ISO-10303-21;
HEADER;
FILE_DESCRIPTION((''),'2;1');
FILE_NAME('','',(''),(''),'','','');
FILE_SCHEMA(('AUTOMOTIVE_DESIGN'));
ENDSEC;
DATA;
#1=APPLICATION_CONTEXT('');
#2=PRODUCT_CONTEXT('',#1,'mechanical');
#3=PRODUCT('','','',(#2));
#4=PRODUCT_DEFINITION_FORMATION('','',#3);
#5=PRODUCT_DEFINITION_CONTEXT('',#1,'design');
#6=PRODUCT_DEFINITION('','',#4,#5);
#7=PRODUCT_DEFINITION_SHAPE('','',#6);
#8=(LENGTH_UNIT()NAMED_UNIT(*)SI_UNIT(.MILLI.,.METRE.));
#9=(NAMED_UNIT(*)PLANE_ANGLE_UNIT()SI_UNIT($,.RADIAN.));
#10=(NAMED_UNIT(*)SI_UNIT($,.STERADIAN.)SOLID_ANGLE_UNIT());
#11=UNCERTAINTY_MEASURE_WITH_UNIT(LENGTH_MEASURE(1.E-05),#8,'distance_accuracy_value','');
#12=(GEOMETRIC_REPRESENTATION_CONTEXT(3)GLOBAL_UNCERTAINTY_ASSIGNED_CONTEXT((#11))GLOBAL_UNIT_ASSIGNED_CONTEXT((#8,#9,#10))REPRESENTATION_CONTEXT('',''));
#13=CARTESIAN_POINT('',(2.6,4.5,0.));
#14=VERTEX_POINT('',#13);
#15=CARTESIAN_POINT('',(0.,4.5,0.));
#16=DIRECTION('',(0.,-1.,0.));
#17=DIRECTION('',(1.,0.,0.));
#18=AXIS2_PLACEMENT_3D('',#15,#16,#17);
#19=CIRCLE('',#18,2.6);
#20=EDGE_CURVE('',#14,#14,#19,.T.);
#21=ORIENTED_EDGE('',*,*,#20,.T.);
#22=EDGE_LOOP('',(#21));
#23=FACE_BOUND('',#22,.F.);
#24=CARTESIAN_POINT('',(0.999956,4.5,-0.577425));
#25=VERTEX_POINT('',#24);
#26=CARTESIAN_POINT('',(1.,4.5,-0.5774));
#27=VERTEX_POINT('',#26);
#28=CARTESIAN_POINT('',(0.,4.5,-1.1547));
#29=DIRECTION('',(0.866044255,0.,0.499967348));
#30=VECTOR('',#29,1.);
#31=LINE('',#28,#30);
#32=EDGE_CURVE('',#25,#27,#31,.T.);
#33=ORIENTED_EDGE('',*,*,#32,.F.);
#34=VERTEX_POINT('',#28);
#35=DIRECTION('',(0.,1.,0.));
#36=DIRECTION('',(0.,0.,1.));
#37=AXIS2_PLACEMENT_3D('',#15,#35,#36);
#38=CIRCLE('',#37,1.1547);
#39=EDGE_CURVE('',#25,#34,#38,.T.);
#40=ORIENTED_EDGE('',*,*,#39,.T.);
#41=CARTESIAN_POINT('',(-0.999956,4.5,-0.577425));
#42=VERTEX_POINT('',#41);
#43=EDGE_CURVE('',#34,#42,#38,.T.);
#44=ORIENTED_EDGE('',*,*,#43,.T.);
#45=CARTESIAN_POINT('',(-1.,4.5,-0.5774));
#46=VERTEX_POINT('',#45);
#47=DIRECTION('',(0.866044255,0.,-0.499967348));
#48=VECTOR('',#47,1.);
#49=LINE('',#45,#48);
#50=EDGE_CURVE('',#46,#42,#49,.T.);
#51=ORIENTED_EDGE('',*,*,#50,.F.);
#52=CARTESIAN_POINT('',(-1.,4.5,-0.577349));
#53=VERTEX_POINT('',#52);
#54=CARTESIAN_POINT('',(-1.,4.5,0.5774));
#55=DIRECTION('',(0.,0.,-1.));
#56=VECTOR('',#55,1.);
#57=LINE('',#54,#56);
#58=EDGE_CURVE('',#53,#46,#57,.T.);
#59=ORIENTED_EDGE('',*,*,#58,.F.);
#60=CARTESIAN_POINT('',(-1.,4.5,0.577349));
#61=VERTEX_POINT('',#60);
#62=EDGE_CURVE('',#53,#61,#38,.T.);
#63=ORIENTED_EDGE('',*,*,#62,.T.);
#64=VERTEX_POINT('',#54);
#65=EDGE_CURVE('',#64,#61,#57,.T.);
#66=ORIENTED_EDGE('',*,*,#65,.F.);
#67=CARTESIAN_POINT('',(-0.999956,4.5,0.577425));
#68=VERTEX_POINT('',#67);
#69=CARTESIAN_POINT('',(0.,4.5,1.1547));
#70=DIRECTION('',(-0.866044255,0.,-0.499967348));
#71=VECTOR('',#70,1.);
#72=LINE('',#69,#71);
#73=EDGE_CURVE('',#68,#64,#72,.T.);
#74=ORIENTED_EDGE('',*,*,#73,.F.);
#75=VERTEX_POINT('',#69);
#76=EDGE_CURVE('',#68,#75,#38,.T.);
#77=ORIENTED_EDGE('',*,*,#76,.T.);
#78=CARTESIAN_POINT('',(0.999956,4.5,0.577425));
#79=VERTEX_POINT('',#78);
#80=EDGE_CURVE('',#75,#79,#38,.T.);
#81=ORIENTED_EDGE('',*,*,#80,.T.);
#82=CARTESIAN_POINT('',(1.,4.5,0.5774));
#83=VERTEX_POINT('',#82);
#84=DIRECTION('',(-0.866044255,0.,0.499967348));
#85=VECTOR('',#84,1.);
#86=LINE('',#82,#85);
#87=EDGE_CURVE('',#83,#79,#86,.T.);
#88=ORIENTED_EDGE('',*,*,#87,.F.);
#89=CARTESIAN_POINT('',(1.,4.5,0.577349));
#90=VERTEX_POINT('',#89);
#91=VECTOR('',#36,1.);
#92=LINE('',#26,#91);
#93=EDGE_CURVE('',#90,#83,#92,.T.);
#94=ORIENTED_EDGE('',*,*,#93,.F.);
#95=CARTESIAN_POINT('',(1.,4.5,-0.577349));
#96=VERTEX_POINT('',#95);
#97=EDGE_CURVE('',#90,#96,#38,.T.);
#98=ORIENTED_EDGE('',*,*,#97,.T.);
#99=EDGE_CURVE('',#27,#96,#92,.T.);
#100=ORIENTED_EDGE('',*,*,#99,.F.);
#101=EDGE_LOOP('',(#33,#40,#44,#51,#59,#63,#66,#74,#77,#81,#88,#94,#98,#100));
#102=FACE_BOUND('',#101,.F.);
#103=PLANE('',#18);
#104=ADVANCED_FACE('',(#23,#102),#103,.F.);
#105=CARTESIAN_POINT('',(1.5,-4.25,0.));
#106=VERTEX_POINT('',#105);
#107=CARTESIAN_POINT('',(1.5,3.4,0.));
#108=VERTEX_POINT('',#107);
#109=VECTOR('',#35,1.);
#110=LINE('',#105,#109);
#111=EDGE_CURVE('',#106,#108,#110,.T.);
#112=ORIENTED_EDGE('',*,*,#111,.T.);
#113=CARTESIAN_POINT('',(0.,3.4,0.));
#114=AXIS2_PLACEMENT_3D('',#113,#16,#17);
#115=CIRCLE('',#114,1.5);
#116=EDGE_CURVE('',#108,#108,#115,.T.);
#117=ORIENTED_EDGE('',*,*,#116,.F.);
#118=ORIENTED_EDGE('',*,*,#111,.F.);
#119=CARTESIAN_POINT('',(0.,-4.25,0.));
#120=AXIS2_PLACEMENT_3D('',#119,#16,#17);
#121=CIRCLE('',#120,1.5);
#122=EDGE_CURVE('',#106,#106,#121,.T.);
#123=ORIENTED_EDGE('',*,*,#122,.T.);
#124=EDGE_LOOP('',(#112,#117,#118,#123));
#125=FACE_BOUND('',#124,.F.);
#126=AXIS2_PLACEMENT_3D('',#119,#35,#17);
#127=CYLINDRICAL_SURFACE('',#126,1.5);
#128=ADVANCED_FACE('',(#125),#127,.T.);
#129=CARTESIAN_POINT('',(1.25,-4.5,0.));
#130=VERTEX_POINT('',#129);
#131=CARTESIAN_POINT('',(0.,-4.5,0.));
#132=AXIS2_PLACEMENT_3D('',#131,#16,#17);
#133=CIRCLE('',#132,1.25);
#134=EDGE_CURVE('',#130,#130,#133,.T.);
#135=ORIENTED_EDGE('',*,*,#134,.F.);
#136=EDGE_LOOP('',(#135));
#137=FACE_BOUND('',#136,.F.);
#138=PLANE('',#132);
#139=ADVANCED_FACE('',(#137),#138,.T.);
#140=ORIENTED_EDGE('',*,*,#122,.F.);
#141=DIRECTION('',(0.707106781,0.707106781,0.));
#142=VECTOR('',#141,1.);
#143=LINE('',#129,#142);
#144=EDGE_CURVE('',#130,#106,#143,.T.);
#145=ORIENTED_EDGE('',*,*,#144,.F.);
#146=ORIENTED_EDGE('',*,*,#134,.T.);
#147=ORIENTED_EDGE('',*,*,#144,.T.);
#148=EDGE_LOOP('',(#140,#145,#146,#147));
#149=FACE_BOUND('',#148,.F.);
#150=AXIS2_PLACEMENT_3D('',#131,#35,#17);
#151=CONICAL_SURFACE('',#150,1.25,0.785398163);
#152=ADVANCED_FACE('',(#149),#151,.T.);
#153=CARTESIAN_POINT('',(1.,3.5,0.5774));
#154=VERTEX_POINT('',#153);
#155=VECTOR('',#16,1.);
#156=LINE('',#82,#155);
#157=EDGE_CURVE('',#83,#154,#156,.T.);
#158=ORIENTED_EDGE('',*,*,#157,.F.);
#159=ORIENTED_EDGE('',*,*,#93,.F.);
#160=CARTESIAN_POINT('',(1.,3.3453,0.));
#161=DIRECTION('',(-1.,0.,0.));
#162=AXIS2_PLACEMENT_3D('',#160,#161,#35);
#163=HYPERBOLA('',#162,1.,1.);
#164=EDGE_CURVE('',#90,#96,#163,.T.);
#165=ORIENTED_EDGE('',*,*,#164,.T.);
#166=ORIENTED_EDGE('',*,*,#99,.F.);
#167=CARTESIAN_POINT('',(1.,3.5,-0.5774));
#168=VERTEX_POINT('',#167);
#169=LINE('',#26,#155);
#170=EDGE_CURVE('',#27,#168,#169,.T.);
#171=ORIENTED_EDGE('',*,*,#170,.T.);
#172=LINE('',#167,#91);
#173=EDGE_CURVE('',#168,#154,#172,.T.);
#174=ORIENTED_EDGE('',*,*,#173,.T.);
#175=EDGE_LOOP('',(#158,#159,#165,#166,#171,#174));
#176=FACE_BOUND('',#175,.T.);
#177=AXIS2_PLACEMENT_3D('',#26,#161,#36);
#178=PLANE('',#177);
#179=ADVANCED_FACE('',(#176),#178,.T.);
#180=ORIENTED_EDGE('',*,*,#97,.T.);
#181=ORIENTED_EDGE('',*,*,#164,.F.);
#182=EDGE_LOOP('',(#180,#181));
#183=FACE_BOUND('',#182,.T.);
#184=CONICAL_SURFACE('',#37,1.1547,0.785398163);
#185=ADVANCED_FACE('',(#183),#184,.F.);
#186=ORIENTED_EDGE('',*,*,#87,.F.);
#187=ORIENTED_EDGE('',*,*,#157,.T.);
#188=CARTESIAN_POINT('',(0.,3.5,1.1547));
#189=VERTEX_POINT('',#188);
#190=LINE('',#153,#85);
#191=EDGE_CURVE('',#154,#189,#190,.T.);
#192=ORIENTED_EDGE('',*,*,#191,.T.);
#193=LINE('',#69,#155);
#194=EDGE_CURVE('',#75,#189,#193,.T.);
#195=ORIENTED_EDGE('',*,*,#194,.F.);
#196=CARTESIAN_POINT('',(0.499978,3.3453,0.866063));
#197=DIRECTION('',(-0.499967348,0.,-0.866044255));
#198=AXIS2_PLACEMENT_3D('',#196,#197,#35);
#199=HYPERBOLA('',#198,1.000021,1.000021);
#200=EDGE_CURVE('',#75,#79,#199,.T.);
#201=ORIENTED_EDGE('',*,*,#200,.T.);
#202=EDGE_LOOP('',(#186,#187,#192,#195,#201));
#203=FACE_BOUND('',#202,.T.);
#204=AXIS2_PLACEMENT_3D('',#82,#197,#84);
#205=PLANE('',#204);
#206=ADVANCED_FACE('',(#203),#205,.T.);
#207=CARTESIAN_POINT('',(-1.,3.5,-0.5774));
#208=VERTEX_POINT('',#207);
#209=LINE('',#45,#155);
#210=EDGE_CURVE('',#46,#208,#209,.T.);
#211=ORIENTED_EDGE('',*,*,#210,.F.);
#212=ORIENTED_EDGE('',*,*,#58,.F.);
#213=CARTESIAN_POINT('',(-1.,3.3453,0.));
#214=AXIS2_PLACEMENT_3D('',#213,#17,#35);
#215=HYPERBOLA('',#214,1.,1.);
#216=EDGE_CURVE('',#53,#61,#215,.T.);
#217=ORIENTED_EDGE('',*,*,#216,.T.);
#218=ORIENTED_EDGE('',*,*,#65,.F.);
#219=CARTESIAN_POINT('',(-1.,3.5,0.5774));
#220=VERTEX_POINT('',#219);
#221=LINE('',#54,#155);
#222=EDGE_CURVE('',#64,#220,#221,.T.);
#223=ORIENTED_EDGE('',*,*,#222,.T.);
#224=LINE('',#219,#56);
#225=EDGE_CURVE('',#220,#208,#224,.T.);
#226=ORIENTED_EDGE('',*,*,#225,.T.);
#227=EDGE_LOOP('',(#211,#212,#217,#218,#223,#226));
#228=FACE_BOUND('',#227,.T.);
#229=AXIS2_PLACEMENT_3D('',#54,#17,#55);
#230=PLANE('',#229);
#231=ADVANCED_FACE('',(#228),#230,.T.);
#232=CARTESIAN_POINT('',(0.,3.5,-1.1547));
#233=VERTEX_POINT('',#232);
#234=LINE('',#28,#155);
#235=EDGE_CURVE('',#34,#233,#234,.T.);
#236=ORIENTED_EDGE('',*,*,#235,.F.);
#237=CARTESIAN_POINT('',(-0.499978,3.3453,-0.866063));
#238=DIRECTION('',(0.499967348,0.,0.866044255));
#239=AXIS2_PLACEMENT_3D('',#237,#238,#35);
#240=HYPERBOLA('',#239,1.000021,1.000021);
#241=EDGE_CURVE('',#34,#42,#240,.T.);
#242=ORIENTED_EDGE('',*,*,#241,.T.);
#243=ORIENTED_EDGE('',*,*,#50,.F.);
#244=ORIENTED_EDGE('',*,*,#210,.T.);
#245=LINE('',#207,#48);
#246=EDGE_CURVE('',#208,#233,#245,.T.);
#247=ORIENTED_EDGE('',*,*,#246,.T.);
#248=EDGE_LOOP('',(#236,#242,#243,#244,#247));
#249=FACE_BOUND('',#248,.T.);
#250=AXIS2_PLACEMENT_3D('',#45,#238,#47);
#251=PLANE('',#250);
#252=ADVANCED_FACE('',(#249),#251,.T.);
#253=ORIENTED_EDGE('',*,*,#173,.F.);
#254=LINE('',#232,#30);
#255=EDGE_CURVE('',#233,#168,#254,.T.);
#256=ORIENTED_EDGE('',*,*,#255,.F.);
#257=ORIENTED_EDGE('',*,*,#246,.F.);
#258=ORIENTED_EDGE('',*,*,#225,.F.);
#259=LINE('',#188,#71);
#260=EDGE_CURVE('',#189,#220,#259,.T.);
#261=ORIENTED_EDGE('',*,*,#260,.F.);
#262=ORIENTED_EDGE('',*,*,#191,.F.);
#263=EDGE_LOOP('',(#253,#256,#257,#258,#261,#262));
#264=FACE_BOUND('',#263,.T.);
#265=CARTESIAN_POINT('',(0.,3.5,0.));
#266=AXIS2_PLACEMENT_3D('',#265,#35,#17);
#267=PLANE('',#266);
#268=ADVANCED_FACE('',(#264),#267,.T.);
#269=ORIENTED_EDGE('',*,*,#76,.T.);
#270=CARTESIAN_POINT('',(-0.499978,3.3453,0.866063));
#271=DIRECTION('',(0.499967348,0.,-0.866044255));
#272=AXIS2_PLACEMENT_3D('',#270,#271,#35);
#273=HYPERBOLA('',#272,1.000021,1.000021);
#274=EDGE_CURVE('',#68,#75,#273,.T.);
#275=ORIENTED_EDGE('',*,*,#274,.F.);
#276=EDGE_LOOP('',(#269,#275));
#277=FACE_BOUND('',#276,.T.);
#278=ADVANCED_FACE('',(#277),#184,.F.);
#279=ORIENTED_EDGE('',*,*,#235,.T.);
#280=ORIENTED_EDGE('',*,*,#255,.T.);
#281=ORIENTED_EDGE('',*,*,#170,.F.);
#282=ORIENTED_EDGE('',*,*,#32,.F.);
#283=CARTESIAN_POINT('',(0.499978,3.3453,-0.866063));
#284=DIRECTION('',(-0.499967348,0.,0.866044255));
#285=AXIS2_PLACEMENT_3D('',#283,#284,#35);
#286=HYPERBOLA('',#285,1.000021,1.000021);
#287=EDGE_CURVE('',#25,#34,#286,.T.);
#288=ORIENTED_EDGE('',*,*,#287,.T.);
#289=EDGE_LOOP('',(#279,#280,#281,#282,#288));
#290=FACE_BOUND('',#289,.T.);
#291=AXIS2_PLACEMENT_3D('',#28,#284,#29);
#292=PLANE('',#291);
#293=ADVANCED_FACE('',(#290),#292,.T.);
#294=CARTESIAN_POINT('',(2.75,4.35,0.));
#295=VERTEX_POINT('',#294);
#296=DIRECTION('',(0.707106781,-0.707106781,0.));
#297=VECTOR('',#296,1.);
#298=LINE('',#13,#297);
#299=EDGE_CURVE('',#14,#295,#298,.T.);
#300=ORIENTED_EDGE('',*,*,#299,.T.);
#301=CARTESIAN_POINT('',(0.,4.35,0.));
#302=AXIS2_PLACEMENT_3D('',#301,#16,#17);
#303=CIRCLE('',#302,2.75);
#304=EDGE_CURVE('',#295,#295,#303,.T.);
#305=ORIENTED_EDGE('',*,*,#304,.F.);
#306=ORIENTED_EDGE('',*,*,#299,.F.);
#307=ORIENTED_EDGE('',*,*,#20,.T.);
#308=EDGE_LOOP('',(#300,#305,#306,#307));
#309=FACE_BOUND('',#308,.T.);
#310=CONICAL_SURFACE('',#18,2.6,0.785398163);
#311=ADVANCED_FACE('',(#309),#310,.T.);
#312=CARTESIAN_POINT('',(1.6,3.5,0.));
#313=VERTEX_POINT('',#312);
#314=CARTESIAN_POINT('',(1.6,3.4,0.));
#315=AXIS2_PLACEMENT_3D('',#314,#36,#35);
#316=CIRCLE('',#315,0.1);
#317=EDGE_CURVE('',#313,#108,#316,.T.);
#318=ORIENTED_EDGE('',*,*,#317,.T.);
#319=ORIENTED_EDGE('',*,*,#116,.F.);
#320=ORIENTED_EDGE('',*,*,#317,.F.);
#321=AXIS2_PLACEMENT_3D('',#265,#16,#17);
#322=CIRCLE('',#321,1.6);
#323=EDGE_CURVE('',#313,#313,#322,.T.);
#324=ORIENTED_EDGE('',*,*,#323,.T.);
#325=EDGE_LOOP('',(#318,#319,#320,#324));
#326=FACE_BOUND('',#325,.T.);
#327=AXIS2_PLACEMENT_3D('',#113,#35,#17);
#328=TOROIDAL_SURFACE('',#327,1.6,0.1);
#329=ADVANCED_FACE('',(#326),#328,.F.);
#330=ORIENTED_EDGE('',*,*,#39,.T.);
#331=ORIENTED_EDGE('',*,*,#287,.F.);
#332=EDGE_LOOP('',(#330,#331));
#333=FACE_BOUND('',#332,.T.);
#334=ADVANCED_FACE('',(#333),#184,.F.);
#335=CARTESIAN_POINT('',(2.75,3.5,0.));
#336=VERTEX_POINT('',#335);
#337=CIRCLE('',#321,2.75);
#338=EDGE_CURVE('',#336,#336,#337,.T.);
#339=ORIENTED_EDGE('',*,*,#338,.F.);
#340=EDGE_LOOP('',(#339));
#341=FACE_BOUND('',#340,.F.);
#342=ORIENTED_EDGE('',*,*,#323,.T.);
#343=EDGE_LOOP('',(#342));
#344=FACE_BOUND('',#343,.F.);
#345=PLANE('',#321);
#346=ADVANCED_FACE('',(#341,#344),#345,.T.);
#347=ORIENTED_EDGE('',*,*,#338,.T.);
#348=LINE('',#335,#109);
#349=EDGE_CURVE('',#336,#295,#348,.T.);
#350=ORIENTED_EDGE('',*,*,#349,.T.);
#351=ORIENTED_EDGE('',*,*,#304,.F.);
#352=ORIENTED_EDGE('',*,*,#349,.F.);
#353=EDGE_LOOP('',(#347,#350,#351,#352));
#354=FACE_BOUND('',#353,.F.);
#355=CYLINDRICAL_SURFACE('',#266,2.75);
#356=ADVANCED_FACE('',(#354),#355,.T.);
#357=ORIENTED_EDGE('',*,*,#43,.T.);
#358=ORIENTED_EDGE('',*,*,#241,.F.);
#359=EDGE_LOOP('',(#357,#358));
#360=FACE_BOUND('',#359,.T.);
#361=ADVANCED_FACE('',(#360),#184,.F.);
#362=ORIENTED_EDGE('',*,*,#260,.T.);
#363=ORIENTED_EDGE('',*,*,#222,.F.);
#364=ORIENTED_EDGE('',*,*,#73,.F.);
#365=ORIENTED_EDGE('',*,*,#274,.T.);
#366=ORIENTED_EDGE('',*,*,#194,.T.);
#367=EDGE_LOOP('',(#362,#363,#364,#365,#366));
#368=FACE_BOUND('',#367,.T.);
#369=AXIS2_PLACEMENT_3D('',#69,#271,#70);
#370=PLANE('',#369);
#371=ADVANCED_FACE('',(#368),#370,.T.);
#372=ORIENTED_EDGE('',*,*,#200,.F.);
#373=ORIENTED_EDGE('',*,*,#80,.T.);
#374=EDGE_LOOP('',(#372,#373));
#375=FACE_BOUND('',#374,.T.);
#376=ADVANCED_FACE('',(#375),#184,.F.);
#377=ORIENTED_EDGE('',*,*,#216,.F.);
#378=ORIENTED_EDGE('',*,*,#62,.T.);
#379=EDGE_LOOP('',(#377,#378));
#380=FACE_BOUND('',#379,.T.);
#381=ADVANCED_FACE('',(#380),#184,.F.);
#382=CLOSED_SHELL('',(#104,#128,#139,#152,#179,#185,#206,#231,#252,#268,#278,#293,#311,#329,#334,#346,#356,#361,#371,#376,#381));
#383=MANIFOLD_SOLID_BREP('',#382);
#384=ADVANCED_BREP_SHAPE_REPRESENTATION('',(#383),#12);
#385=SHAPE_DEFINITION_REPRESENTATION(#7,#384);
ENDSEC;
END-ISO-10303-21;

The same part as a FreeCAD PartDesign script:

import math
import FreeCAD as App
import Part
import Sketcher

V = App.Vector
Q = App.Units.Quantity

doc = App.newDocument("Part")
body = doc.addObject("PartDesign::Body", "Body")

# Sketch on XY plane
sketch1 = body.newObject("Sketcher::SketchObject", "Sketch")
sketch1.AttachmentSupport = (doc.getObject("XY_Plane"), [""])
sketch1.MapMode = "FlatFace"
sketch1.addGeometry(Part.LineSegment(V(2.6, 4.5, 0), V(0, 4.5, 0)), False)
sketch1.addGeometry(Part.LineSegment(V(0, 4.5, 0), V(0, -4.5, 0)), False)
sketch1.addGeometry(Part.LineSegment(V(0, -4.5, 0), V(1.25, -4.5, 0)), False)
sketch1.addGeometry(Part.LineSegment(V(1.25, -4.5, 0), V(1.5, -4.25, 0)), False)
sketch1.addGeometry(Part.LineSegment(V(1.5, -4.25, 0), V(1.5, 3.4, 0)), False)
sketch1.addGeometry(Part.ArcOfCircle(Part.Circle(V(1.6, 3.4, 0), V(0, 0, 1), 0.1), math.radians(90), math.radians(180)), False)
sketch1.addGeometry(Part.LineSegment(V(1.6, 3.5, 0), V(2.75, 3.5, 0)), False)
sketch1.addGeometry(Part.LineSegment(V(2.75, 3.5, 0), V(2.75, 4.35, 0)), False)
sketch1.addGeometry(Part.LineSegment(V(2.75, 4.35, 0), V(2.6, 4.5, 0)), False)
sketch1.addConstraint(Sketcher.Constraint("Coincident", 0, 2, 1, 1))
sketch1.addConstraint(Sketcher.Constraint("Coincident", 1, 2, 2, 1))
sketch1.addConstraint(Sketcher.Constraint("Coincident", 2, 2, 3, 1))
sketch1.addConstraint(Sketcher.Constraint("Coincident", 3, 2, 4, 1))
sketch1.addConstraint(Sketcher.Constraint("Tangent", 4, 2, 5, 2))
sketch1.addConstraint(Sketcher.Constraint("Tangent", 5, 1, 6, 1))
sketch1.addConstraint(Sketcher.Constraint("Coincident", 6, 2, 7, 1))
sketch1.addConstraint(Sketcher.Constraint("Coincident", 7, 2, 8, 1))
sketch1.addConstraint(Sketcher.Constraint("Coincident", 8, 2, 0, 1))
sketch1.addConstraint(Sketcher.Constraint("Horizontal", 0))
sketch1.addConstraint(Sketcher.Constraint("Vertical", 1))
sketch1.addConstraint(Sketcher.Constraint("Horizontal", 2))
sketch1.addConstraint(Sketcher.Constraint("Vertical", 4))
sketch1.addConstraint(Sketcher.Constraint("Horizontal", 6))
sketch1.addConstraint(Sketcher.Constraint("Vertical", 7))
sketch1.addConstraint(Sketcher.Constraint("Symmetric", 0, 2, 1, 2, -1, 1))
sketch1.addConstraint(Sketcher.Constraint("Perpendicular", 3, 8))
sketch1.addConstraint(Sketcher.Constraint("Angle", 8, Q("135 deg")))
sketch1.addConstraint(Sketcher.Constraint("DistanceY", 5, 1, 0, 2, 1.0))
sketch1.addConstraint(Sketcher.Constraint("DistanceY", 2, 2, 5, 1, 8.0))
sketch1.addConstraint(Sketcher.Constraint("DistanceX", 5, 1, 8, 2, 1.0))
sketch1.addConstraint(Sketcher.Constraint("Radius", 5, 0.1))
sketch1.addConstraint(Sketcher.Constraint("DistanceX", 2, 2, 3, 2, 0.25))
sketch1.addConstraint(Sketcher.Constraint("DistanceY", 7, 2, 0, 2, 0.15))
sketch1.addConstraint(Sketcher.Constraint("DistanceX", 0, 2, 0, 1, 2.6))
revolution = body.newObject("PartDesign::Revolution", "Revolution")
revolution.Profile = sketch1
revolution.ReferenceAxis = (sketch1, ["V_Axis"])
revolution.Angle = 360

# Sketch on XZ plane
sketch2 = body.newObject("Sketcher::SketchObject", "Sketch001")
sketch2.AttachmentSupport = (doc.getObject("XZ_Plane"), [""])
sketch2.MapMode = "FlatFace"
sketch2.AttachmentOffset = App.Placement(V(0, 0, -4.5), App.Rotation())
sketch2.addGeometry(Part.LineSegment(V(-1, 0.5774, 0), V(0, 1.1547, 0)), False)
sketch2.addGeometry(Part.LineSegment(V(0, 1.1547, 0), V(1, 0.5774, 0)), False)
sketch2.addGeometry(Part.LineSegment(V(1, 0.5774, 0), V(1, -0.5774, 0)), False)
sketch2.addGeometry(Part.LineSegment(V(1, -0.5774, 0), V(0, -1.1547, 0)), False)
sketch2.addGeometry(Part.LineSegment(V(0, -1.1547, 0), V(-1, -0.5774, 0)), False)
sketch2.addGeometry(Part.LineSegment(V(-1, -0.5774, 0), V(-1, 0.5774, 0)), False)
sketch2.addConstraint(Sketcher.Constraint("Coincident", 0, 2, 1, 1))
sketch2.addConstraint(Sketcher.Constraint("Coincident", 1, 2, 2, 1))
sketch2.addConstraint(Sketcher.Constraint("Coincident", 2, 2, 3, 1))
sketch2.addConstraint(Sketcher.Constraint("Coincident", 3, 2, 4, 1))
sketch2.addConstraint(Sketcher.Constraint("Coincident", 4, 2, 5, 1))
sketch2.addConstraint(Sketcher.Constraint("Coincident", 5, 2, 0, 1))
sketch2.addConstraint(Sketcher.Constraint("Vertical", 2))
sketch2.addConstraint(Sketcher.Constraint("Vertical", 5))
sketch2.addConstraint(Sketcher.Constraint("Symmetric", 0, 2, 3, 2, -1, 1))
sketch2.addConstraint(Sketcher.Constraint("Symmetric", 1, 2, 4, 2, -1, 1))
sketch2.addConstraint(Sketcher.Constraint("PointOnObject", 0, 2, -2))
sketch2.addConstraint(Sketcher.Constraint("Parallel", 0, 3))
sketch2.addConstraint(Sketcher.Constraint("Horizontal", 2, 2, 4, 2))
sketch2.addConstraint(Sketcher.Constraint("DistanceX", 4, 2, 2, 2, 2.0))
sketch2.addConstraint(Sketcher.Constraint("DistanceY", 2, 2, 2, 1, 1.1548))
sketch2.addConstraint(Sketcher.Constraint("DistanceY", 2, 2, 0, 2, 1.732))
pocket1 = body.newObject("PartDesign::Pocket", "Pocket")
pocket1.Profile = sketch2
pocket1.Length = 1
pocket1.Reversed = True

# Sketch on YZ plane
sketch3 = body.newObject("Sketcher::SketchObject", "Sketch002")
sketch3.AttachmentSupport = (doc.getObject("YZ_Plane"), [""])
sketch3.MapMode = "FlatFace"
sketch3.addGeometry(Part.LineSegment(V(4.5, 0.6547, 0), V(4.5, 1.1547, 0)), False)
sketch3.addGeometry(Part.LineSegment(V(4.5, 1.1547, 0), V(4, 0.6547, 0)), False)
sketch3.addGeometry(Part.LineSegment(V(4, 0.6547, 0), V(4.5, 0.6547, 0)), False)
sketch3.addConstraint(Sketcher.Constraint("Coincident", 0, 2, 1, 1))
sketch3.addConstraint(Sketcher.Constraint("Coincident", 1, 2, 2, 1))
sketch3.addConstraint(Sketcher.Constraint("Coincident", 2, 2, 0, 1))
sketch3.addConstraint(Sketcher.Constraint("Vertical", 0))
sketch3.addConstraint(Sketcher.Constraint("Horizontal", 2))
sketch3.addConstraint(Sketcher.Constraint("Equal", 2, 0))
sketch3.addConstraint(Sketcher.Constraint("DistanceX", 2, 1, 2, 2, 0.5))
sketch3.addConstraint(Sketcher.Constraint("DistanceX", -1, 1, 1, 2, 4.0))
sketch3.addConstraint(Sketcher.Constraint("DistanceY", -1, 1, 0, 2, 1.1547))
groove = body.newObject("PartDesign::Groove", "Groove")
groove.Profile = sketch3
groove.ReferenceAxis = (sketch3, ["H_Axis"])
groove.Angle = 360

doc.recompute()
